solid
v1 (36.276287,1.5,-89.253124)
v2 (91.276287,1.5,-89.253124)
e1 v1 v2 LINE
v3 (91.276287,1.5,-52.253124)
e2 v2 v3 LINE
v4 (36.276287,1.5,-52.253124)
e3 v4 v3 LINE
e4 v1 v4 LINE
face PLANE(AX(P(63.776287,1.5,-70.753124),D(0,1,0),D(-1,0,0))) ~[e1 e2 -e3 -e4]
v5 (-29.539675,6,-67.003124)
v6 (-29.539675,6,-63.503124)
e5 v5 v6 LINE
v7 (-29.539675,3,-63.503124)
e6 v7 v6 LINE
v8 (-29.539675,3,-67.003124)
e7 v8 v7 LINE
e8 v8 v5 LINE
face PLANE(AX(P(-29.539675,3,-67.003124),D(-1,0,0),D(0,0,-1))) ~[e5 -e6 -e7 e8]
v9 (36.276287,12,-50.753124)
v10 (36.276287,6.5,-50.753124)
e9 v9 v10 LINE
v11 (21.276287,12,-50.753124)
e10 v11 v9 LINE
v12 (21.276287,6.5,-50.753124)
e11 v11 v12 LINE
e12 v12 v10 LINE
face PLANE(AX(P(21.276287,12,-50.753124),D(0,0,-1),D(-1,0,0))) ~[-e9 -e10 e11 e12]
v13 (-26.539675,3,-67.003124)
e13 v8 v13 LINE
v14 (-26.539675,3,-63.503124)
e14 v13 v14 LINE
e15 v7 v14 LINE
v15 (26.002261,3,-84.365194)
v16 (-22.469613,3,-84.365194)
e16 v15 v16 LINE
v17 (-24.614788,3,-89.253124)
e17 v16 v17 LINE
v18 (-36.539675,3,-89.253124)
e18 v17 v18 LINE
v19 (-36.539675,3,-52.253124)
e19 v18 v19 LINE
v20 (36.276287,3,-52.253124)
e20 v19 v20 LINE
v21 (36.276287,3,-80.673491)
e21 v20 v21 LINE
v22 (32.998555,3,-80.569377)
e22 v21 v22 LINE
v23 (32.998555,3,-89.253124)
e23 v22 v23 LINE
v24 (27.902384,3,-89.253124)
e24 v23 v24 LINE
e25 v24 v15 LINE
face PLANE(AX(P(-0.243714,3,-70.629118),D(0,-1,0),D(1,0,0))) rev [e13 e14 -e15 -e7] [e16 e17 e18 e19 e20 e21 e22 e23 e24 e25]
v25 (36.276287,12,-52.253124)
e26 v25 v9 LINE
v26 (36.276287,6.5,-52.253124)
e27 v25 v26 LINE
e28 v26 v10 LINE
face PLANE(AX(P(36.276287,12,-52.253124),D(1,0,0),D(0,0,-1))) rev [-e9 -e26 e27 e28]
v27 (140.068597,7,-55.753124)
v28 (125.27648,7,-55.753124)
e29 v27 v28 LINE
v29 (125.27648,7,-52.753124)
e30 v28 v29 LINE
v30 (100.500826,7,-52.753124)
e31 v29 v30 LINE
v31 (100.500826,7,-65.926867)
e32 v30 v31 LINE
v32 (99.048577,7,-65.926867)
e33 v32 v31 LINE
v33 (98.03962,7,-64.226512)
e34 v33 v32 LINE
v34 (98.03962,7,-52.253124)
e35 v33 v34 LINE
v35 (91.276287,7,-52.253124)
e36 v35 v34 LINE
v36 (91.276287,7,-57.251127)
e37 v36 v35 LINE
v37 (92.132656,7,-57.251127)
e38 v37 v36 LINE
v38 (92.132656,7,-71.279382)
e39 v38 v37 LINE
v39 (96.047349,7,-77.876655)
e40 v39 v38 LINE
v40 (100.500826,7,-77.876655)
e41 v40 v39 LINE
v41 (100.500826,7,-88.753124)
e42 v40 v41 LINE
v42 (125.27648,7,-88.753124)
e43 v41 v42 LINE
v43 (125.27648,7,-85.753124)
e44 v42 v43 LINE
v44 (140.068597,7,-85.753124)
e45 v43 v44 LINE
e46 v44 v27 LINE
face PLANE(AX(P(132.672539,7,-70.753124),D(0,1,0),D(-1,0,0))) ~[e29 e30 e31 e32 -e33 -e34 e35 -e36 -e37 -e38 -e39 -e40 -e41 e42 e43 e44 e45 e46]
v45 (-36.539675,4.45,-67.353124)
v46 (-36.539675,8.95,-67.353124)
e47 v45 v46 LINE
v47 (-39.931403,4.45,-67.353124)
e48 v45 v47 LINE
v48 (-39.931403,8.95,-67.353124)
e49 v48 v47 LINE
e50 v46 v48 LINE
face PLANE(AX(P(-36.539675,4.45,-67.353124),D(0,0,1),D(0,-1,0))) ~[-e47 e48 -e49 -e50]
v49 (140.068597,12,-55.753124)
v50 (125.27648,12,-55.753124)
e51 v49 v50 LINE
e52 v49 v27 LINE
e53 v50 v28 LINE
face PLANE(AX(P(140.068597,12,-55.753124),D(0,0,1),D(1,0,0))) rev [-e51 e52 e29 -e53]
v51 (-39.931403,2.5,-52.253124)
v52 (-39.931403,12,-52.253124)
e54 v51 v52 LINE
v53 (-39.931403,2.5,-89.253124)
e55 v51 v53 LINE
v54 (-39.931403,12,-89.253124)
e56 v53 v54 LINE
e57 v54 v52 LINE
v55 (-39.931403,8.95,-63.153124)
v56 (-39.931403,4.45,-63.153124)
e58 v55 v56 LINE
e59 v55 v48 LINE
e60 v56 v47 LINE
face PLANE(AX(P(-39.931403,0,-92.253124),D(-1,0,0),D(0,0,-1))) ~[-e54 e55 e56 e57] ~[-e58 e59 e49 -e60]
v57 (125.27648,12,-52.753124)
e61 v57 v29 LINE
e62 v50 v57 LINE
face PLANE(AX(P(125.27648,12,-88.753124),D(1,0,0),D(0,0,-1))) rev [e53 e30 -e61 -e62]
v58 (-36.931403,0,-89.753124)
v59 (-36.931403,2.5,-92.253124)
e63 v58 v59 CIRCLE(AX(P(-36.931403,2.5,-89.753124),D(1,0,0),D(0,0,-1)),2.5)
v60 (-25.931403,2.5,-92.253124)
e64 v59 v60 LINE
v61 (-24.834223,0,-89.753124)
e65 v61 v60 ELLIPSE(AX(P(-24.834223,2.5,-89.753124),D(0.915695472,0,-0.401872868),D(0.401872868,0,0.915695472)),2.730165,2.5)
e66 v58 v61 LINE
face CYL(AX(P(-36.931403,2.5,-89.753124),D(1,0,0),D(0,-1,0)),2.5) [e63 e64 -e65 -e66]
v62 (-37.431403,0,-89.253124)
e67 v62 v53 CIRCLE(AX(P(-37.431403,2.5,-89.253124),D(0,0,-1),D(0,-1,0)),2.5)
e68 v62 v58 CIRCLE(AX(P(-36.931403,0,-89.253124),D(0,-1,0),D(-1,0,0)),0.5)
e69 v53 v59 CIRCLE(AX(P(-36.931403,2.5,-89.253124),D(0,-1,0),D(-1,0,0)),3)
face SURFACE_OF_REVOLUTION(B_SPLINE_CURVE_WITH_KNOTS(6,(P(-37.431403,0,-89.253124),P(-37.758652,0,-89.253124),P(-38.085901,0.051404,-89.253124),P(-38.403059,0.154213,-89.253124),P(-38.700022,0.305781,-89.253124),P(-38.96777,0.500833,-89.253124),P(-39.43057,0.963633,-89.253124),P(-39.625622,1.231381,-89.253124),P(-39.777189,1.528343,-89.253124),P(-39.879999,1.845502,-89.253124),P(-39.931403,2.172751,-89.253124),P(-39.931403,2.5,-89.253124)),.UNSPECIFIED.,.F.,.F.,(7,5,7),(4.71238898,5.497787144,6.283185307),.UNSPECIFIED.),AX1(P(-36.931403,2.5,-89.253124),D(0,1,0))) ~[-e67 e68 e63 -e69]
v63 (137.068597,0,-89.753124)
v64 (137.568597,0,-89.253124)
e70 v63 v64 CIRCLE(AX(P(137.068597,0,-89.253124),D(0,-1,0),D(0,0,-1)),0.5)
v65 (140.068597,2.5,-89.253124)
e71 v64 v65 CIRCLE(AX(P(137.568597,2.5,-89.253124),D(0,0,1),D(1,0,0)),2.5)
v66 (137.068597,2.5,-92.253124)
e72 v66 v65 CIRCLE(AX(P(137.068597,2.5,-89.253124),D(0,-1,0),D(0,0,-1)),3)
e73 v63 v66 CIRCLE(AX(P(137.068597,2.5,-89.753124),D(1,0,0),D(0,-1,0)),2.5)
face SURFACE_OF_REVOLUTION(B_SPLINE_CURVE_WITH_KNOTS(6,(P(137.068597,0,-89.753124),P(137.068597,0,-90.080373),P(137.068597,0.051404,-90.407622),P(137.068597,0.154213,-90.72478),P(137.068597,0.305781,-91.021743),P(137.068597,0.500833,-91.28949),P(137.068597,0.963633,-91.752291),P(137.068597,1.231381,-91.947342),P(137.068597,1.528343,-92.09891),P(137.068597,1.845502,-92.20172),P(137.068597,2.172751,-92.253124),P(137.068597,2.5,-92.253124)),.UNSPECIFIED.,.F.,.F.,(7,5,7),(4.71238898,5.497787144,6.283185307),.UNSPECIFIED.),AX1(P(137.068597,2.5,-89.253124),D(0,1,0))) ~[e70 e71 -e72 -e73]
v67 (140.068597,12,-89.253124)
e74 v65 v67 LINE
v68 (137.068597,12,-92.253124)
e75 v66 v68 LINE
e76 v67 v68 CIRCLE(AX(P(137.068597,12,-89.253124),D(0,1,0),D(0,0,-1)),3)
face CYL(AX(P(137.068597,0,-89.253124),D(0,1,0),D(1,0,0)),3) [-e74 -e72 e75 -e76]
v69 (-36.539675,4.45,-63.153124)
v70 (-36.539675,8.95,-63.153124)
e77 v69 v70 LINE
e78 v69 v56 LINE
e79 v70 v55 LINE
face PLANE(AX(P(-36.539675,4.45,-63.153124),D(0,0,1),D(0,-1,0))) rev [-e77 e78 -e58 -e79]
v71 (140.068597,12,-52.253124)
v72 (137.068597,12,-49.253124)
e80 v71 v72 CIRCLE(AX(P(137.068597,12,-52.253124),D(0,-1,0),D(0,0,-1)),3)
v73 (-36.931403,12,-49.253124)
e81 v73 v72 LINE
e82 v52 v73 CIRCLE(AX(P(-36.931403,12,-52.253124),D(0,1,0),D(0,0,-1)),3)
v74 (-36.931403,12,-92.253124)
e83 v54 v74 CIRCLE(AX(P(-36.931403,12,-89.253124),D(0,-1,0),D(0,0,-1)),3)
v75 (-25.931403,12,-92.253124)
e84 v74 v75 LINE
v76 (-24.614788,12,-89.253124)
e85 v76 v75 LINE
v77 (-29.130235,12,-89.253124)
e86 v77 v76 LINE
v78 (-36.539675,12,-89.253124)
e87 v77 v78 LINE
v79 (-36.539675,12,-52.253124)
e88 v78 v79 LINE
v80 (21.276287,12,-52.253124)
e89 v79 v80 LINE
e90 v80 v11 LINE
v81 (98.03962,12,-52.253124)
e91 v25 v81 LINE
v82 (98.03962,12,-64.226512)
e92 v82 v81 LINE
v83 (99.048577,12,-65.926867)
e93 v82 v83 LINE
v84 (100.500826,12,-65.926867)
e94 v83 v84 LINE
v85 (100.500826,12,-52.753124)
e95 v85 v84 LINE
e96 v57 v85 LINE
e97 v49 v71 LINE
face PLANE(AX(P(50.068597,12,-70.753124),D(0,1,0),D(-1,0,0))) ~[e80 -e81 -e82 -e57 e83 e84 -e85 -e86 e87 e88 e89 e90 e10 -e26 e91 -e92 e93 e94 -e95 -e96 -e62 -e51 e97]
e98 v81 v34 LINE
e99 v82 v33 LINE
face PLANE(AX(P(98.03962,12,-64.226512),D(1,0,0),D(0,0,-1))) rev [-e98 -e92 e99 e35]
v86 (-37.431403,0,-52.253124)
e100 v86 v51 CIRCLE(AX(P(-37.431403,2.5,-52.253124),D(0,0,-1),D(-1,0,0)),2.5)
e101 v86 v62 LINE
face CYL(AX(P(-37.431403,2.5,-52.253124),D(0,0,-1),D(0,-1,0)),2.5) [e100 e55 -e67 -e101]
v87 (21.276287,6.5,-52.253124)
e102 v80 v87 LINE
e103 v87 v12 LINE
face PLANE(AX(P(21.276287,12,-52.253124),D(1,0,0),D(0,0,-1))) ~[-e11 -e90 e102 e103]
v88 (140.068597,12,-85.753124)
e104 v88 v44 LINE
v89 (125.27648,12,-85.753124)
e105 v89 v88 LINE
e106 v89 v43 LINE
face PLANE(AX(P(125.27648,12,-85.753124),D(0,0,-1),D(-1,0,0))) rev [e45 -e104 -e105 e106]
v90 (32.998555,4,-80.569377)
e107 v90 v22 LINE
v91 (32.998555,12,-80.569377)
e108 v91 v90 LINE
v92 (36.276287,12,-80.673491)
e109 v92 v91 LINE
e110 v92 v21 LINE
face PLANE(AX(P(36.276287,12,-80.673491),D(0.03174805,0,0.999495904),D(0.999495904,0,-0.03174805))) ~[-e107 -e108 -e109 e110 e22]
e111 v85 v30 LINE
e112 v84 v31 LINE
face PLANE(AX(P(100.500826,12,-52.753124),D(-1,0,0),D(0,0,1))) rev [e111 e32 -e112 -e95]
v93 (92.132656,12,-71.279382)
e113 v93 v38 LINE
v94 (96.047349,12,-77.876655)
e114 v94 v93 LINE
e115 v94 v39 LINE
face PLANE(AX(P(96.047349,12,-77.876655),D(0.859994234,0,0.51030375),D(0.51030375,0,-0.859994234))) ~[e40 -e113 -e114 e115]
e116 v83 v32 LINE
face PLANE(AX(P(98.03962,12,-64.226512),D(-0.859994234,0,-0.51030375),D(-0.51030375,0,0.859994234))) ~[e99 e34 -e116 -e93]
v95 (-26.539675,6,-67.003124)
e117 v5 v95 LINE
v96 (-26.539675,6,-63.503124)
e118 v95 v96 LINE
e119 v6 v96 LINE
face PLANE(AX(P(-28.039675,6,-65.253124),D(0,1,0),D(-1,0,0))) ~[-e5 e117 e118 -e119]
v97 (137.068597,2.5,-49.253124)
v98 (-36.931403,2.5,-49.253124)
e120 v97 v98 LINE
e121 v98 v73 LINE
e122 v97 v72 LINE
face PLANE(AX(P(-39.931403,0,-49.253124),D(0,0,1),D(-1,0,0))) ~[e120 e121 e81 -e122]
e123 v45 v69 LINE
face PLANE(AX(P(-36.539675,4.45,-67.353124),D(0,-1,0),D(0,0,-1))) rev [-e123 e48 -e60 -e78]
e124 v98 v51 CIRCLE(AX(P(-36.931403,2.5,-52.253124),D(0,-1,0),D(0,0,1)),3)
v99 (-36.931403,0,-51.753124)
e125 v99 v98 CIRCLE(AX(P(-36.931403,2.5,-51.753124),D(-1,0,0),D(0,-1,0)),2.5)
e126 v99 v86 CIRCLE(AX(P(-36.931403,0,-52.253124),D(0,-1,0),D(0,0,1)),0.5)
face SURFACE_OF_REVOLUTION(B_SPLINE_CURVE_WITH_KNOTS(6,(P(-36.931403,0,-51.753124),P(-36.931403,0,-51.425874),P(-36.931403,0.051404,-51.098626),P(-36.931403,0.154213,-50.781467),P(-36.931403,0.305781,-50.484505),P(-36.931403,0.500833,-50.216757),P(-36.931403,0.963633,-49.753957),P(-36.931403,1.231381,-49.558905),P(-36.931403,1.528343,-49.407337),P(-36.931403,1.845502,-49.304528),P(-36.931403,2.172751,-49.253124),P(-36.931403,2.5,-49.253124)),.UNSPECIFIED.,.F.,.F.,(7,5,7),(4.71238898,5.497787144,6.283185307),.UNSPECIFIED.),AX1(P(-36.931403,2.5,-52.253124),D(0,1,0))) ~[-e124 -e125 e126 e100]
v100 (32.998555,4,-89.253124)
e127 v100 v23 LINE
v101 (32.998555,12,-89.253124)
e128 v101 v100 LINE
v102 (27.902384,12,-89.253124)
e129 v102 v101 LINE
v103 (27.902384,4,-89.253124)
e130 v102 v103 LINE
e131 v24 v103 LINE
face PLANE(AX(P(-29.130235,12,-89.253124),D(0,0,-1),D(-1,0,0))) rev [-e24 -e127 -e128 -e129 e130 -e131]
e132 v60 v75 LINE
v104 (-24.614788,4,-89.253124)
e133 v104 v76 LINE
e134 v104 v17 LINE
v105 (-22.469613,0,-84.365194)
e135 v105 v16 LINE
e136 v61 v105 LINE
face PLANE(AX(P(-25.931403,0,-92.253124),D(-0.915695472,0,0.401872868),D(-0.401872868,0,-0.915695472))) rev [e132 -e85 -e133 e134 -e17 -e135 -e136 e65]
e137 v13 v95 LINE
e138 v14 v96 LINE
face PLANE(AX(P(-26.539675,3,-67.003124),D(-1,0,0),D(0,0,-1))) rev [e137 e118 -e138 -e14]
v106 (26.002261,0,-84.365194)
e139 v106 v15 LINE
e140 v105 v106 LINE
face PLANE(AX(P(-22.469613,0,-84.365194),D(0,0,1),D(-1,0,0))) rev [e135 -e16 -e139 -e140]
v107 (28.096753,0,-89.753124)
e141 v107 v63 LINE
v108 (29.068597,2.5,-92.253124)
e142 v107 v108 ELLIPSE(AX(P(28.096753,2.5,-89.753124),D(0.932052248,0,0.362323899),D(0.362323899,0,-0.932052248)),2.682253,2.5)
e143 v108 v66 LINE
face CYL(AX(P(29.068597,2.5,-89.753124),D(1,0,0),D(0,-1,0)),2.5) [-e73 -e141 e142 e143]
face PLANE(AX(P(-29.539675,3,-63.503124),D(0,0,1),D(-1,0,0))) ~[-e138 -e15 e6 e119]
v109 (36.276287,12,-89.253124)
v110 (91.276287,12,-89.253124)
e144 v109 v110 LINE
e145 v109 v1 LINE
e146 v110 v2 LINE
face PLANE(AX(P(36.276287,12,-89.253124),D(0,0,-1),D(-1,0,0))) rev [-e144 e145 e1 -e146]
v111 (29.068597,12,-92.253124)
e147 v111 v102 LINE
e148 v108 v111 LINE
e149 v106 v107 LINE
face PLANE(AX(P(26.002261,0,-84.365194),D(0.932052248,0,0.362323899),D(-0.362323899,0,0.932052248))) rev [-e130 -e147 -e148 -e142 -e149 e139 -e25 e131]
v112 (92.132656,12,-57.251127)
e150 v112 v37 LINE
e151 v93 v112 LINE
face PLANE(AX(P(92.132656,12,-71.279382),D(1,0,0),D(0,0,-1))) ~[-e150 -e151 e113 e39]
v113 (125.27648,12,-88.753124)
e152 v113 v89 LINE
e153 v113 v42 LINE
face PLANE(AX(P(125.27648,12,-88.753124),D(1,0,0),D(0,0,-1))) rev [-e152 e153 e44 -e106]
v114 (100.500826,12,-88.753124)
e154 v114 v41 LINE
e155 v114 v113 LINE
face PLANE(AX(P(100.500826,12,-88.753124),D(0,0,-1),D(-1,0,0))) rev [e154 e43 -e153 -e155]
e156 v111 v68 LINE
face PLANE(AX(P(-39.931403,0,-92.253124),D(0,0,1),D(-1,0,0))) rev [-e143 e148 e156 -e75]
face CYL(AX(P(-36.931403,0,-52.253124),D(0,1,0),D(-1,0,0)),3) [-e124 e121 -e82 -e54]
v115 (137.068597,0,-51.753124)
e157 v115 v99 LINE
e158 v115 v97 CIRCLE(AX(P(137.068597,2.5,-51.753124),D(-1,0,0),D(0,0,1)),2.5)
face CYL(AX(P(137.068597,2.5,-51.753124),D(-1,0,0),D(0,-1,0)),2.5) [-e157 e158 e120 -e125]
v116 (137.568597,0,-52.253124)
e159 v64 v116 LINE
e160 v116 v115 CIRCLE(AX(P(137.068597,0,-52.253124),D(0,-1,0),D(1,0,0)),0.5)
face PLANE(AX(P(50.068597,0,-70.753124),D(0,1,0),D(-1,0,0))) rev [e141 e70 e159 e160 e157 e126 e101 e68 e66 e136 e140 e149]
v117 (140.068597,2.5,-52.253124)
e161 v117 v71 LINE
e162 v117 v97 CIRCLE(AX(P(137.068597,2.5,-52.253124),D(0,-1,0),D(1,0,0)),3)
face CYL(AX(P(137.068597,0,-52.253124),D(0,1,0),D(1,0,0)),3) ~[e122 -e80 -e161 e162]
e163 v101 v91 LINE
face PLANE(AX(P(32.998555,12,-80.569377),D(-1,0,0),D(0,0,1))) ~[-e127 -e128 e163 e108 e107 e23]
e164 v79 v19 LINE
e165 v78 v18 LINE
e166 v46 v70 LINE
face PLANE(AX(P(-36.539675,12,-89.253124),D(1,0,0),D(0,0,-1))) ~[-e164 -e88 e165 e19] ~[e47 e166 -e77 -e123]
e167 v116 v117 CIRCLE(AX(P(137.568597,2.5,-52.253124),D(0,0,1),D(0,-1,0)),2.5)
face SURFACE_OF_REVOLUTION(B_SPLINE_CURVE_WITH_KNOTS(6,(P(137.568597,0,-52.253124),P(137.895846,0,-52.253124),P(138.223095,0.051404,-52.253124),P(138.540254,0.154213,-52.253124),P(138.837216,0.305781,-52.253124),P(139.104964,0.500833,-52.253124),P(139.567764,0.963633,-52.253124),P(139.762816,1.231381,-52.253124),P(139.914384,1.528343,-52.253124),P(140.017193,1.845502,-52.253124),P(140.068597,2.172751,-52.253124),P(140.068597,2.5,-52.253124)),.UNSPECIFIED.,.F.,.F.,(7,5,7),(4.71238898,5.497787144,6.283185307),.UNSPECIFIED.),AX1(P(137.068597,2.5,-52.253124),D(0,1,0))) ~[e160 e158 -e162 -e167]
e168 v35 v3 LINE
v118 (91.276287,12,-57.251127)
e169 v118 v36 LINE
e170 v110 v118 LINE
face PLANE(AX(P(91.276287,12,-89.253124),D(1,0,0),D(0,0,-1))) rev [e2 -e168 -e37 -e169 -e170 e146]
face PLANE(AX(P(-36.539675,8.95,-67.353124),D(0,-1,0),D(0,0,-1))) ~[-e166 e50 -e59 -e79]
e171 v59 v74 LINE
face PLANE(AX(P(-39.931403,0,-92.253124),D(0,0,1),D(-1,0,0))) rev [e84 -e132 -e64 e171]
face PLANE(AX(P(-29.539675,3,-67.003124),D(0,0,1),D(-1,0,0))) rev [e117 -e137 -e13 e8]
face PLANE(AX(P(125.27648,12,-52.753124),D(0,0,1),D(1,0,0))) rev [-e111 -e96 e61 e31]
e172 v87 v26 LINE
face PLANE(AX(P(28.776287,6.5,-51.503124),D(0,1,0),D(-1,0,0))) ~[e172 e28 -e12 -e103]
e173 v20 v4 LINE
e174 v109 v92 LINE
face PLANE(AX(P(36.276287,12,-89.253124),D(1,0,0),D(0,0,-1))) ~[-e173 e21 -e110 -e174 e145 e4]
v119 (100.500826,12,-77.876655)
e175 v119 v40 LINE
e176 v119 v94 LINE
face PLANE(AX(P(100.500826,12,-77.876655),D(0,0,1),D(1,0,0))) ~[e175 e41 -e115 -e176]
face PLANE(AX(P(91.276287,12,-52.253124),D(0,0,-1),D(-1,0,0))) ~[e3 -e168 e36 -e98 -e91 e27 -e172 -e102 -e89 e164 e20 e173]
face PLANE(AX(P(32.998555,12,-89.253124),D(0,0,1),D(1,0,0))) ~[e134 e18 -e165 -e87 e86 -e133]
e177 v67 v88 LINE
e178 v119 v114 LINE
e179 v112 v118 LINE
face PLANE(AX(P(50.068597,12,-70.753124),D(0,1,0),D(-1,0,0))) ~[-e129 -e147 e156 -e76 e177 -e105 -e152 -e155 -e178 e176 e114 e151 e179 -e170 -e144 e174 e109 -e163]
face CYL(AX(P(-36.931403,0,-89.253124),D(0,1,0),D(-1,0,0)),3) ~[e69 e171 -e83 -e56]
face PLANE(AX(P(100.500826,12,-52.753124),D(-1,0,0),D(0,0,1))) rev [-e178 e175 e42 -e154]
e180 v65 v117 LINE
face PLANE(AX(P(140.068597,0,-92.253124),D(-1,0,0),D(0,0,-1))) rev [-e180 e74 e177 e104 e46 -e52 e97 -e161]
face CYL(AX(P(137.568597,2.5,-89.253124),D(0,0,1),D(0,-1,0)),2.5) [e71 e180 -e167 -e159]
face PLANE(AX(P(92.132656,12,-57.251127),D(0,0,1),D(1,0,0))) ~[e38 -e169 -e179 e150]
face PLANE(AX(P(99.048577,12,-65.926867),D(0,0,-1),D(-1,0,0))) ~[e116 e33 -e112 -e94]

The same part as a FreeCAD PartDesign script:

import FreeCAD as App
import Part
import Sketcher

V = App.Vector


def edges_at(feature, points):
    """Names of the edges that pass closest to the given points."""
    edges = feature.Shape.Edges
    near = lambda p: min(range(len(edges)), key=lambda i: edges[i].distToShape(Part.Vertex(*p))[0])
    return sorted({f"Edge{near(p) + 1}" for p in points})

doc = App.newDocument("Part")
body = doc.addObject("PartDesign::Body", "Body")

# Sketch on XZ plane
sketch1 = doc.addObject("Sketcher::SketchObject", "Sketch")
body.addObject(sketch1)
sketch1.AttachmentSupport = (doc.XZ_Plane, [""])
sketch1.MapMode = "FlatFace"
sketch1.addGeometry(Part.LineSegment(V(-39.931403, -29.253124, 0), V(-39.931403, 13.746876, 0)), False)
sketch1.addGeometry(Part.LineSegment(V(-39.931403, 13.746876, 0), V(140.068597, 13.746876, 0)), False)
sketch1.addGeometry(Part.LineSegment(V(140.068597, 13.746876, 0), V(140.068597, -29.253124, 0)), False)
sketch1.addGeometry(Part.LineSegment(V(140.068597, -29.253124, 0), V(-39.931403, -29.253124, 0)), False)
sketch1.addConstraint(Sketcher.Constraint("Coincident", 0, 2, 1, 1))
sketch1.addConstraint(Sketcher.Constraint("Coincident", 1, 2, 2, 1))
sketch1.addConstraint(Sketcher.Constraint("Coincident", 2, 2, 3, 1))
sketch1.addConstraint(Sketcher.Constraint("Coincident", 3, 2, 0, 1))
sketch1.addConstraint(Sketcher.Constraint("Vertical", 0))
sketch1.addConstraint(Sketcher.Constraint("Horizontal", 1))
sketch1.addConstraint(Sketcher.Constraint("Vertical", 2))
sketch1.addConstraint(Sketcher.Constraint("Horizontal", 3))
sketch1.addConstraint(Sketcher.Constraint("DistanceX", 1, 1, 1, 2, 180.0))
sketch1.addConstraint(Sketcher.Constraint("DistanceY", 0, 1, 0, 2, 43.0))
sketch1.addConstraint(Sketcher.Constraint("DistanceX", 0, 2, -1, 1, 39.931403))
sketch1.addConstraint(Sketcher.Constraint("DistanceY", -1, 1, 0, 2, 13.746876))
pad1 = doc.addObject("PartDesign::Pad", "Pad")
body.addObject(pad1)
pad1.Profile = sketch1
pad1.Length = 12
pad1.Reversed = True

# Sketch on XZ plane
sketch2 = doc.addObject("Sketcher::SketchObject", "Sketch001")
body.addObject(sketch2)
sketch2.AttachmentSupport = (doc.XZ_Plane, [""])
sketch2.MapMode = "FlatFace"
sketch2.addGeometry(Part.LineSegment(V(26.002261, 5.858947, 0), V(-22.469613, 5.858947, 0)), False)
sketch2.addGeometry(Part.LineSegment(V(-22.469613, 5.858947, 0), V(-25.931403, 13.746876, 0)), False)
sketch2.addGeometry(Part.LineSegment(V(-25.931403, 13.746876, 0), V(29.068597, 13.746876, 0)), False)
sketch2.addGeometry(Part.LineSegment(V(29.068597, 13.746876, 0), V(26.002261, 5.858947, 0)), False)
sketch2.addConstraint(Sketcher.Constraint("Coincident", 0, 2, 1, 1))
sketch2.addConstraint(Sketcher.Constraint("Coincident", 1, 2, 2, 1))
sketch2.addConstraint(Sketcher.Constraint("Coincident", 2, 2, 3, 1))
sketch2.addConstraint(Sketcher.Constraint("Coincident", 3, 2, 0, 1))
sketch2.addConstraint(Sketcher.Constraint("Horizontal", 0))
sketch2.addConstraint(Sketcher.Constraint("Horizontal", 2))
sketch2.addConstraint(Sketcher.Constraint("DistanceX", 2, 1, 2, 2, 55.0))
sketch2.addConstraint(Sketcher.Constraint("Distance", 1, 8.61414))
sketch2.addConstraint(Sketcher.Constraint("Distance", 3, 8.462969))
sketch2.addConstraint(Sketcher.Constraint("DistanceX", 0, 2, 0, 1, 48.471875))
sketch2.addConstraint(Sketcher.Constraint("DistanceX", -1, 1, 3, 2, 26.002261))
sketch2.addConstraint(Sketcher.Constraint("DistanceY", -1, 1, 0, 2, 5.858947))
pocket1 = doc.addObject("PartDesign::Pocket", "Pocket")
body.addObject(pocket1)
pocket1.Profile = sketch2
pocket1.Length = 52

# Sketch on XZ plane
sketch3 = doc.addObject("Sketcher::SketchObject", "Sketch002")
body.addObject(sketch3)
sketch3.AttachmentSupport = (doc.XZ_Plane, [""])
sketch3.MapMode = "FlatFace"
sketch3.AttachmentOffset = App.Placement(V(0, 0, -12), App.Rotation())
sketch3.addGeometry(Part.LineSegment(V(140.068597, -22.753124, 0), V(125.27648, -22.753124, 0)), False)
sketch3.addGeometry(Part.LineSegment(V(125.27648, -22.753124, 0), V(125.27648, 7.246876, 0)), False)
sketch3.addGeometry(Part.LineSegment(V(125.27648, 7.246876, 0), V(140.068597, 7.246876, 0)), False)
sketch3.addGeometry(Part.LineSegment(V(140.068597, 7.246876, 0), V(140.068597, -22.753124, 0)), False)
sketch3.addConstraint(Sketcher.Constraint("Coincident", 0, 2, 1, 1))
sketch3.addConstraint(Sketcher.Constraint("Coincident", 1, 2, 2, 1))
sketch3.addConstraint(Sketcher.Constraint("Coincident", 2, 2, 3, 1))
sketch3.addConstraint(Sketcher.Constraint("Coincident", 3, 2, 0, 1))
sketch3.addConstraint(Sketcher.Constraint("Horizontal", 0))
sketch3.addConstraint(Sketcher.Constraint("Vertical", 1))
sketch3.addConstraint(Sketcher.Constraint("Horizontal", 2))
sketch3.addConstraint(Sketcher.Constraint("Vertical", 3))
sketch3.addConstraint(Sketcher.Constraint("DistanceY", 1, 1, 1, 2, 30.0))
sketch3.addConstraint(Sketcher.Constraint("DistanceX", 0, 2, 0, 1, 14.792117))
sketch3.addConstraint(Sketcher.Constraint("DistanceX", -1, 1, 0, 2, 125.27648))
sketch3.addConstraint(Sketcher.Constraint("DistanceY", 0, 2, -1, 1, 22.753124))
pocket2 = doc.addObject("PartDesign::Pocket", "Pocket001")
body.addObject(pocket2)
pocket2.Profile = sketch3
pocket2.Length = 5
pocket2.Reversed = True

# Sketch on XZ plane
sketch4 = doc.addObject("Sketcher::SketchObject", "Sketch003")
body.addObject(sketch4)
sketch4.AttachmentSupport = (doc.XZ_Plane, [""])
sketch4.MapMode = "FlatFace"
sketch4.AttachmentOffset = App.Placement(V(0, 0, -12), App.Rotation())
sketch4.addGeometry(Part.LineSegment(V(125.27648, -25.753124, 0), V(100.500826, -25.753124, 0)), False)
sketch4.addGeometry(Part.LineSegment(V(100.500826, -25.753124, 0), V(100.500826, 10.246876, 0)), False)
sketch4.addGeometry(Part.LineSegment(V(100.500826, 10.246876, 0), V(125.27648, 10.246876, 0)), False)
sketch4.addGeometry(Part.LineSegment(V(125.27648, 10.246876, 0), V(125.27648, -25.753124, 0)), False)
sketch4.addConstraint(Sketcher.Constraint("Coincident", 0, 2, 1, 1))
sketch4.addConstraint(Sketcher.Constraint("Coincident", 1, 2, 2, 1))
sketch4.addConstraint(Sketcher.Constraint("Coincident", 2, 2, 3, 1))
sketch4.addConstraint(Sketcher.Constraint("Coincident", 3, 2, 0, 1))
sketch4.addConstraint(Sketcher.Constraint("Horizontal", 0))
sketch4.addConstraint(Sketcher.Constraint("Vertical", 1))
sketch4.addConstraint(Sketcher.Constraint("Horizontal", 2))
sketch4.addConstraint(Sketcher.Constraint("Vertical", 3))
sketch4.addConstraint(Sketcher.Constraint("DistanceY", 1, 1, 1, 2, 36.0))
sketch4.addConstraint(Sketcher.Constraint("DistanceX", 0, 2, 0, 1, 24.775654))
sketch4.addConstraint(Sketcher.Constraint("DistanceX", -1, 1, 2, 2, 125.27648))
sketch4.addConstraint(Sketcher.Constraint("DistanceY", 0, 2, -1, 1, 25.753124))
pocket3 = doc.addObject("PartDesign::Pocket", "Pocket002")
body.addObject(pocket3)
pocket3.Profile = sketch4
pocket3.Length = 5
pocket3.Reversed = True

# Sketch on XZ plane
sketch5 = doc.addObject("Sketcher::SketchObject", "Sketch004")
body.addObject(sketch5)
sketch5.AttachmentSupport = (doc.XZ_Plane, [""])
sketch5.MapMode = "FlatFace"
sketch5.AttachmentOffset = App.Placement(V(0, 0, -12), App.Rotation())
sketch5.addGeometry(Part.LineSegment(V(36.276287, -26.253124, 0), V(36.276287, 10.746876, 0)), False)
sketch5.addGeometry(Part.LineSegment(V(36.276287, 10.746876, 0), V(91.276287, 10.746876, 0)), False)
sketch5.addGeometry(Part.LineSegment(V(91.276287, 10.746876, 0), V(91.276287, -26.253124, 0)), False)
sketch5.addGeometry(Part.LineSegment(V(91.276287, -26.253124, 0), V(36.276287, -26.253124, 0)), False)
sketch5.addConstraint(Sketcher.Constraint("Coincident", 0, 2, 1, 1))
sketch5.addConstraint(Sketcher.Constraint("Coincident", 1, 2, 2, 1))
sketch5.addConstraint(Sketcher.Constraint("Coincident", 2, 2, 3, 1))
sketch5.addConstraint(Sketcher.Constraint("Coincident", 3, 2, 0, 1))
sketch5.addConstraint(Sketcher.Constraint("Vertical", 0))
sketch5.addConstraint(Sketcher.Constraint("Horizontal", 1))
sketch5.addConstraint(Sketcher.Constraint("Vertical", 2))
sketch5.addConstraint(Sketcher.Constraint("Horizontal", 3))
sketch5.addConstraint(Sketcher.Constraint("DistanceX", 1, 1, 1, 2, 55.0))
sketch5.addConstraint(Sketcher.Constraint("DistanceY", 0, 1, 0, 2, 37.0))
sketch5.addConstraint(Sketcher.Constraint("DistanceX", -1, 1, 0, 2, 36.276287))
sketch5.addConstraint(Sketcher.Constraint("DistanceY", -1, 1, 0, 2, 10.746876))
pocket4 = doc.addObject("PartDesign::Pocket", "Pocket003")
body.addObject(pocket4)
pocket4.Profile = sketch5
pocket4.Length = 10.5
pocket4.Reversed = True

# Sketch on XZ plane
sketch6 = doc.addObject("Sketcher::SketchObject", "Sketch005")
body.addObject(sketch6)
sketch6.AttachmentSupport = (doc.XZ_Plane, [""])
sketch6.MapMode = "FlatFace"
sketch6.AttachmentOffset = App.Placement(V(0, 0, -12), App.Rotation())
sketch6.addGeometry(Part.LineSegment(V(98.03962, -26.253124, 0), V(91.276287, -26.253124, 0)), False)
sketch6.addGeometry(Part.LineSegment(V(91.276287, -26.253124, 0), V(91.276287, -21.255121, 0)), False)
sketch6.addGeometry(Part.LineSegment(V(91.276287, -21.255121, 0), V(92.132656, -21.255121, 0)), False)
sketch6.addGeometry(Part.LineSegment(V(92.132656, -21.255121, 0), V(92.132656, -7.226866, 0)), False)
sketch6.addGeometry(Part.LineSegment(V(92.132656, -7.226866, 0), V(96.047349, -0.629592, 0)), False)
sketch6.addGeometry(Part.LineSegment(V(96.047349, -0.629592, 0), V(100.500826, -0.629592, 0)), False)
sketch6.addGeometry(Part.LineSegment(V(100.500826, -0.629592, 0), V(100.500826, -12.57938, 0)), False)
sketch6.addGeometry(Part.LineSegment(V(100.500826, -12.57938, 0), V(99.048577, -12.57938, 0)), False)
sketch6.addGeometry(Part.LineSegment(V(99.048577, -12.57938, 0), V(98.03962, -14.279736, 0)), False)
sketch6.addGeometry(Part.LineSegment(V(98.03962, -14.279736, 0), V(98.03962, -26.253124, 0)), False)
sketch6.addConstraint(Sketcher.Constraint("Coincident", 0, 2, 1, 1))
sketch6.addConstraint(Sketcher.Constraint("Coincident", 1, 2, 2, 1))
sketch6.addConstraint(Sketcher.Constraint("Coincident", 2, 2, 3, 1))
sketch6.addConstraint(Sketcher.Constraint("Coincident", 3, 2, 4, 1))
sketch6.addConstraint(Sketcher.Constraint("Coincident", 4, 2, 5, 1))
sketch6.addConstraint(Sketcher.Constraint("Coincident", 5, 2, 6, 1))
sketch6.addConstraint(Sketcher.Constraint("Coincident", 6, 2, 7, 1))
sketch6.addConstraint(Sketcher.Constraint("Coincident", 7, 2, 8, 1))
sketch6.addConstraint(Sketcher.Constraint("Coincident", 8, 2, 9, 1))
sketch6.addConstraint(Sketcher.Constraint("Coincident", 9, 2, 0, 1))
sketch6.addConstraint(Sketcher.Constraint("Horizontal", 0))
sketch6.addConstraint(Sketcher.Constraint("Vertical", 1))
sketch6.addConstraint(Sketcher.Constraint("Horizontal", 2))
sketch6.addConstraint(Sketcher.Constraint("Vertical", 3))
sketch6.addConstraint(Sketcher.Constraint("Horizontal", 5))
sketch6.addConstraint(Sketcher.Constraint("Vertical", 6))
sketch6.addConstraint(Sketcher.Constraint("Horizontal", 7))
sketch6.addConstraint(Sketcher.Constraint("Vertical", 9))
sketch6.addConstraint(Sketcher.Constraint("Parallel", 4, 8))
sketch6.addConstraint(Sketcher.Constraint("Distance", 4, 7.6713))
sketch6.addConstraint(Sketcher.Constraint("DistanceX", 2, 1, 2, 2, 0.856369))
sketch6.addConstraint(Sketcher.Constraint("DistanceX", 7, 2, 7, 1, 1.452248))
sketch6.addConstraint(Sketcher.Constraint("DistanceY", 6, 2, 6, 1, 11.949788))
sketch6.addConstraint(Sketcher.Constraint("Distance", 8, 1.977171))
sketch6.addConstraint(Sketcher.Constraint("DistanceX", 0, 2, 0, 1, 6.763332))
sketch6.addConstraint(Sketcher.Constraint("DistanceX", 5, 1, 5, 2, 4.453476))
sketch6.addConstraint(Sketcher.Constraint("DistanceY", 1, 1, 1, 2, 4.998003))
sketch6.addConstraint(Sketcher.Constraint("DistanceY", 3, 1, 3, 2, 14.028255))
sketch6.addConstraint(Sketcher.Constraint("DistanceY", 1, 2, -1, 1, 21.255121))
sketch6.addConstraint(Sketcher.Constraint("DistanceX", -1, 1, 4, 2, 96.047349))
pocket5 = doc.addObject("PartDesign::Pocket", "Pocket004")
body.addObject(pocket5)
pocket5.Profile = sketch6
pocket5.Length = 5
pocket5.Reversed = True

# Sketch on XZ plane
sketch7 = doc.addObject("Sketcher::SketchObject", "Sketch006")
body.addObject(sketch7)
sketch7.AttachmentSupport = (doc.XZ_Plane, [""])
sketch7.MapMode = "FlatFace"
sketch7.AttachmentOffset = App.Placement(V(0, 0, -12), App.Rotation())
sketch7.addGeometry(Part.LineSegment(V(-29.130235, 2.06313, 0), V(-29.130235, 10.746876, 0)), False)
sketch7.addGeometry(Part.LineSegment(V(-29.130235, 10.746876, 0), V(32.998555, 10.746876, 0)), False)
sketch7.addGeometry(Part.LineSegment(V(32.998555, 10.746876, 0), V(32.998555, 2.06313, 0)), False)
sketch7.addGeometry(Part.LineSegment(V(32.998555, 2.06313, 0), V(-29.130235, 2.06313, 0)), False)
sketch7.addConstraint(Sketcher.Constraint("Coincident", 0, 2, 1, 1))
sketch7.addConstraint(Sketcher.Constraint("Coincident", 1, 2, 2, 1))
sketch7.addConstraint(Sketcher.Constraint("Coincident", 2, 2, 3, 1))
sketch7.addConstraint(Sketcher.Constraint("Coincident", 3, 2, 0, 1))
sketch7.addConstraint(Sketcher.Constraint("Vertical", 0))
sketch7.addConstraint(Sketcher.Constraint("Horizontal", 1))
sketch7.addConstraint(Sketcher.Constraint("Vertical", 2))
sketch7.addConstraint(Sketcher.Constraint("Horizontal", 3))
sketch7.addConstraint(Sketcher.Constraint("DistanceX", 1, 1, 1, 2, 62.128791))
sketch7.addConstraint(Sketcher.Constraint("DistanceY", 0, 1, 0, 2, 8.683747))
sketch7.addConstraint(Sketcher.Constraint("DistanceY", -1, 1, 2, 2, 2.06313))
sketch7.addConstraint(Sketcher.Constraint("DistanceX", 0, 2, -1, 1, 29.130235))
pocket6 = doc.addObject("PartDesign::Pocket", "Pocket005")
body.addObject(pocket6)
pocket6.Profile = sketch7
pocket6.Length = 8
pocket6.Reversed = True

# Sketch on XZ plane
sketch8 = doc.addObject("Sketcher::SketchObject", "Sketch007")
body.addObject(sketch8)
sketch8.AttachmentSupport = (doc.XZ_Plane, [""])
sketch8.MapMode = "FlatFace"
sketch8.AttachmentOffset = App.Placement(V(0, 0, -12), App.Rotation())
sketch8.addGeometry(Part.LineSegment(V(-36.539675, 10.746876, 0), V(32.998555, 10.746876, 0)), False)
sketch8.addGeometry(Part.LineSegment(V(32.998555, 10.746876, 0), V(32.998555, 2.06313, 0)), False)
sketch8.addGeometry(Part.LineSegment(V(32.998555, 2.06313, 0), V(36.276287, 2.167244, 0)), False)
sketch8.addGeometry(Part.LineSegment(V(36.276287, 2.167244, 0), V(36.276287, -26.253124, 0)), False)
sketch8.addGeometry(Part.LineSegment(V(36.276287, -26.253124, 0), V(-36.539675, -26.253124, 0)), False)
sketch8.addGeometry(Part.LineSegment(V(-36.539675, -26.253124, 0), V(-36.539675, 10.746876, 0)), False)
sketch8.addConstraint(Sketcher.Constraint("Coincident", 0, 2, 1, 1))
sketch8.addConstraint(Sketcher.Constraint("Coincident", 1, 2, 2, 1))
sketch8.addConstraint(Sketcher.Constraint("Coincident", 2, 2, 3, 1))
sketch8.addConstraint(Sketcher.Constraint("Coincident", 3, 2, 4, 1))
sketch8.addConstraint(Sketcher.Constraint("Coincident", 4, 2, 5, 1))
sketch8.addConstraint(Sketcher.Constraint("Coincident", 5, 2, 0, 1))
sketch8.addConstraint(Sketcher.Constraint("Horizontal", 0))
sketch8.addConstraint(Sketcher.Constraint("Vertical", 1))
sketch8.addConstraint(Sketcher.Constraint("Vertical", 3))
sketch8.addConstraint(Sketcher.Constraint("Horizontal", 4))
sketch8.addConstraint(Sketcher.Constraint("Vertical", 5))
sketch8.addConstraint(Sketcher.Constraint("DistanceY", 5, 1, 5, 2, 37.0))
sketch8.addConstraint(Sketcher.Constraint("DistanceX", 0, 1, 0, 2, 69.53823))
sketch8.addConstraint(Sketcher.Constraint("DistanceX", 4, 2, 4, 1, 72.815963))
sketch8.addConstraint(Sketcher.Constraint("DistanceY", 1, 2, 1, 1, 8.683747))
sketch8.addConstraint(Sketcher.Constraint("DistanceY", 3, 2, 3, 1, 28.420367))
sketch8.addConstraint(Sketcher.Constraint("DistanceY", -1, 1, 1, 2, 2.06313))
sketch8.addConstraint(Sketcher.Constraint("DistanceX", -1, 1, 0, 2, 32.998555))
pocket7 = doc.addObject("PartDesign::Pocket", "Pocket006")
body.addObject(pocket7)
pocket7.Profile = sketch8
pocket7.Length = 9
pocket7.Reversed = True
doc.recompute()

fillet = doc.addObject("PartDesign::Fillet", "Fillet")
body.addObject(fillet)
fillet.Base = (pocket7, edges_at(pocket7, [
    (-39.931, 6, -29.253),
    (140.069, 6, -29.253),
    (140.069, 6, 13.747),
    (-39.931, 6, 13.747),
]))
fillet.Radius = 3
doc.recompute()

fillet2 = doc.addObject("PartDesign::Fillet", "Fillet001")
body.addObject(fillet2)
fillet2.Base = (fillet, edges_at(fillet, [
    (83.069, 0, 13.747),
    (50.069, 0, -29.253),
    (-31.431, 0, 13.747),
    (-39.931, 0, -7.753),
    (140.069, 0, -7.753),
    (-39.053, 0, -28.374),
    (-39.053, 0, 12.868),
    (139.19, 0, 12.868),
    (139.19, 0, -28.374),
]))
fillet2.Radius = 2.5

# Sketch on XZ plane
sketch9 = doc.addObject("Sketcher::SketchObject", "Sketch008")
body.addObject(sketch9)
sketch9.AttachmentSupport = (doc.XZ_Plane, [""])
sketch9.MapMode = "FlatFace"
sketch9.AttachmentOffset = App.Placement(V(0, 0, -12), App.Rotation())
sketch9.addGeometry(Part.LineSegment(V(21.276287, -27.753124, 0), V(21.276287, -26.253124, 0)), False)
sketch9.addGeometry(Part.LineSegment(V(21.276287, -26.253124, 0), V(36.276287, -26.253124, 0)), False)
sketch9.addGeometry(Part.LineSegment(V(36.276287, -26.253124, 0), V(36.276287, -27.753124, 0)), False)
sketch9.addGeometry(Part.LineSegment(V(36.276287, -27.753124, 0), V(21.276287, -27.753124, 0)), False)
sketch9.addConstraint(Sketcher.Constraint("Coincident", 0, 2, 1, 1))
sketch9.addConstraint(Sketcher.Constraint("Coincident", 1, 2, 2, 1))
sketch9.addConstraint(Sketcher.Constraint("Coincident", 2, 2, 3, 1))
sketch9.addConstraint(Sketcher.Constraint("Coincident", 3, 2, 0, 1))
sketch9.addConstraint(Sketcher.Constraint("Vertical", 0))
sketch9.addConstraint(Sketcher.Constraint("Horizontal", 1))
sketch9.addConstraint(Sketcher.Constraint("Vertical", 2))
sketch9.addConstraint(Sketcher.Constraint("Horizontal", 3))
sketch9.addConstraint(Sketcher.Constraint("DistanceX", 1, 1, 1, 2, 15.0))
sketch9.addConstraint(Sketcher.Constraint("DistanceY", 0, 1, 0, 2, 1.5))
sketch9.addConstraint(Sketcher.Constraint("DistanceX", -1, 1, 0, 2, 21.276287))
sketch9.addConstraint(Sketcher.Constraint("DistanceY", 0, 2, -1, 1, 26.253124))
pocket8 = doc.addObject("PartDesign::Pocket", "Pocket007")
body.addObject(pocket8)
pocket8.Profile = sketch9
pocket8.Length = 5.5
pocket8.Reversed = True

# Sketch on YZ plane
sketch10 = doc.addObject("Sketcher::SketchObject", "Sketch009")
body.addObject(sketch10)
sketch10.AttachmentSupport = (doc.YZ_Plane, [""])
sketch10.MapMode = "FlatFace"
sketch10.AttachmentOffset = App.Placement(V(0, 0, -36.539675), App.Rotation())
sketch10.addGeometry(Part.LineSegment(V(8.95, -11.153124, 0), V(4.45, -11.153124, 0)), False)
sketch10.addGeometry(Part.LineSegment(V(4.45, -11.153124, 0), V(4.45, -15.353124, 0)), False)
sketch10.addGeometry(Part.LineSegment(V(4.45, -15.353124, 0), V(8.95, -15.353124, 0)), False)
sketch10.addGeometry(Part.LineSegment(V(8.95, -15.353124, 0), V(8.95, -11.153124, 0)), False)
sketch10.addConstraint(Sketcher.Constraint("Coincident", 0, 2, 1, 1))
sketch10.addConstraint(Sketcher.Constraint("Coincident", 1, 2, 2, 1))
sketch10.addConstraint(Sketcher.Constraint("Coincident", 2, 2, 3, 1))
sketch10.addConstraint(Sketcher.Constraint("Coincident", 3, 2, 0, 1))
sketch10.addConstraint(Sketcher.Constraint("Horizontal", 0))
sketch10.addConstraint(Sketcher.Constraint("Vertical", 1))
sketch10.addConstraint(Sketcher.Constraint("Horizontal", 2))
sketch10.addConstraint(Sketcher.Constraint("Vertical", 3))
sketch10.addConstraint(Sketcher.Constraint("DistanceX", 0, 2, 0, 1, 4.5))
sketch10.addConstraint(Sketcher.Constraint("DistanceY", 1, 2, 1, 1, 4.2))
sketch10.addConstraint(Sketcher.Constraint("DistanceX", -1, 1, 0, 2, 4.45))
sketch10.addConstraint(Sketcher.Constraint("DistanceY", 0, 2, -1, 1, 11.153124))
pocket9 = doc.addObject("PartDesign::Pocket", "Pocket008")
body.addObject(pocket9)
pocket9.Profile = sketch10
pocket9.Length = 5.5

# Sketch on XZ plane
sketch11 = doc.addObject("Sketcher::SketchObject", "Sketch010")
body.addObject(sketch11)
sketch11.AttachmentSupport = (doc.XZ_Plane, [""])
sketch11.MapMode = "FlatFace"
sketch11.AttachmentOffset = App.Placement(V(0, 0, -3), App.Rotation())
sketch11.addGeometry(Part.LineSegment(V(-29.539675, -15.003124, 0), V(-29.539675, -11.503124, 0)), False)
sketch11.addGeometry(Part.LineSegment(V(-29.539675, -11.503124, 0), V(-26.539675, -11.503124, 0)), False)
sketch11.addGeometry(Part.LineSegment(V(-26.539675, -11.503124, 0), V(-26.539675, -15.003124, 0)), False)
sketch11.addGeometry(Part.LineSegment(V(-26.539675, -15.003124, 0), V(-29.539675, -15.003124, 0)), False)
sketch11.addConstraint(Sketcher.Constraint("Coincident", 0, 2, 1, 1))
sketch11.addConstraint(Sketcher.Constraint("Coincident", 1, 2, 2, 1))
sketch11.addConstraint(Sketcher.Constraint("Coincident", 2, 2, 3, 1))
sketch11.addConstraint(Sketcher.Constraint("Coincident", 3, 2, 0, 1))
sketch11.addConstraint(Sketcher.Constraint("Vertical", 0))
sketch11.addConstraint(Sketcher.Constraint("Horizontal", 1))
sketch11.addConstraint(Sketcher.Constraint("Vertical", 2))
sketch11.addConstraint(Sketcher.Constraint("Horizontal", 3))
sketch11.addConstraint(Sketcher.Constraint("DistanceX", 1, 1, 1, 2, 3.0))
sketch11.addConstraint(Sketcher.Constraint("DistanceY", 0, 1, 0, 2, 3.5))
sketch11.addConstraint(Sketcher.Constraint("DistanceX", 0, 2, -1, 1, 29.539675))
sketch11.addConstraint(Sketcher.Constraint("DistanceY", 0, 2, -1, 1, 11.503124))
pad2 = doc.addObject("PartDesign::Pad", "Pad001")
body.addObject(pad2)
pad2.Profile = sketch11
pad2.Length = 3
pad2.Reversed = True
body2 = doc.addObject("PartDesign::Body", "Body001")
doc.recompute()

mirroring = doc.addObject("Part::Mirroring", "Mirroring")
mirroring.Source = body
mirroring.Base = V(0, 0, -39.253124)
mirroring.Normal = V(0, 0, -1)
body2.BaseFeature = mirroring
doc.recompute()
body.Visibility = False
mirroring.Visibility = False

doc.recompute()
